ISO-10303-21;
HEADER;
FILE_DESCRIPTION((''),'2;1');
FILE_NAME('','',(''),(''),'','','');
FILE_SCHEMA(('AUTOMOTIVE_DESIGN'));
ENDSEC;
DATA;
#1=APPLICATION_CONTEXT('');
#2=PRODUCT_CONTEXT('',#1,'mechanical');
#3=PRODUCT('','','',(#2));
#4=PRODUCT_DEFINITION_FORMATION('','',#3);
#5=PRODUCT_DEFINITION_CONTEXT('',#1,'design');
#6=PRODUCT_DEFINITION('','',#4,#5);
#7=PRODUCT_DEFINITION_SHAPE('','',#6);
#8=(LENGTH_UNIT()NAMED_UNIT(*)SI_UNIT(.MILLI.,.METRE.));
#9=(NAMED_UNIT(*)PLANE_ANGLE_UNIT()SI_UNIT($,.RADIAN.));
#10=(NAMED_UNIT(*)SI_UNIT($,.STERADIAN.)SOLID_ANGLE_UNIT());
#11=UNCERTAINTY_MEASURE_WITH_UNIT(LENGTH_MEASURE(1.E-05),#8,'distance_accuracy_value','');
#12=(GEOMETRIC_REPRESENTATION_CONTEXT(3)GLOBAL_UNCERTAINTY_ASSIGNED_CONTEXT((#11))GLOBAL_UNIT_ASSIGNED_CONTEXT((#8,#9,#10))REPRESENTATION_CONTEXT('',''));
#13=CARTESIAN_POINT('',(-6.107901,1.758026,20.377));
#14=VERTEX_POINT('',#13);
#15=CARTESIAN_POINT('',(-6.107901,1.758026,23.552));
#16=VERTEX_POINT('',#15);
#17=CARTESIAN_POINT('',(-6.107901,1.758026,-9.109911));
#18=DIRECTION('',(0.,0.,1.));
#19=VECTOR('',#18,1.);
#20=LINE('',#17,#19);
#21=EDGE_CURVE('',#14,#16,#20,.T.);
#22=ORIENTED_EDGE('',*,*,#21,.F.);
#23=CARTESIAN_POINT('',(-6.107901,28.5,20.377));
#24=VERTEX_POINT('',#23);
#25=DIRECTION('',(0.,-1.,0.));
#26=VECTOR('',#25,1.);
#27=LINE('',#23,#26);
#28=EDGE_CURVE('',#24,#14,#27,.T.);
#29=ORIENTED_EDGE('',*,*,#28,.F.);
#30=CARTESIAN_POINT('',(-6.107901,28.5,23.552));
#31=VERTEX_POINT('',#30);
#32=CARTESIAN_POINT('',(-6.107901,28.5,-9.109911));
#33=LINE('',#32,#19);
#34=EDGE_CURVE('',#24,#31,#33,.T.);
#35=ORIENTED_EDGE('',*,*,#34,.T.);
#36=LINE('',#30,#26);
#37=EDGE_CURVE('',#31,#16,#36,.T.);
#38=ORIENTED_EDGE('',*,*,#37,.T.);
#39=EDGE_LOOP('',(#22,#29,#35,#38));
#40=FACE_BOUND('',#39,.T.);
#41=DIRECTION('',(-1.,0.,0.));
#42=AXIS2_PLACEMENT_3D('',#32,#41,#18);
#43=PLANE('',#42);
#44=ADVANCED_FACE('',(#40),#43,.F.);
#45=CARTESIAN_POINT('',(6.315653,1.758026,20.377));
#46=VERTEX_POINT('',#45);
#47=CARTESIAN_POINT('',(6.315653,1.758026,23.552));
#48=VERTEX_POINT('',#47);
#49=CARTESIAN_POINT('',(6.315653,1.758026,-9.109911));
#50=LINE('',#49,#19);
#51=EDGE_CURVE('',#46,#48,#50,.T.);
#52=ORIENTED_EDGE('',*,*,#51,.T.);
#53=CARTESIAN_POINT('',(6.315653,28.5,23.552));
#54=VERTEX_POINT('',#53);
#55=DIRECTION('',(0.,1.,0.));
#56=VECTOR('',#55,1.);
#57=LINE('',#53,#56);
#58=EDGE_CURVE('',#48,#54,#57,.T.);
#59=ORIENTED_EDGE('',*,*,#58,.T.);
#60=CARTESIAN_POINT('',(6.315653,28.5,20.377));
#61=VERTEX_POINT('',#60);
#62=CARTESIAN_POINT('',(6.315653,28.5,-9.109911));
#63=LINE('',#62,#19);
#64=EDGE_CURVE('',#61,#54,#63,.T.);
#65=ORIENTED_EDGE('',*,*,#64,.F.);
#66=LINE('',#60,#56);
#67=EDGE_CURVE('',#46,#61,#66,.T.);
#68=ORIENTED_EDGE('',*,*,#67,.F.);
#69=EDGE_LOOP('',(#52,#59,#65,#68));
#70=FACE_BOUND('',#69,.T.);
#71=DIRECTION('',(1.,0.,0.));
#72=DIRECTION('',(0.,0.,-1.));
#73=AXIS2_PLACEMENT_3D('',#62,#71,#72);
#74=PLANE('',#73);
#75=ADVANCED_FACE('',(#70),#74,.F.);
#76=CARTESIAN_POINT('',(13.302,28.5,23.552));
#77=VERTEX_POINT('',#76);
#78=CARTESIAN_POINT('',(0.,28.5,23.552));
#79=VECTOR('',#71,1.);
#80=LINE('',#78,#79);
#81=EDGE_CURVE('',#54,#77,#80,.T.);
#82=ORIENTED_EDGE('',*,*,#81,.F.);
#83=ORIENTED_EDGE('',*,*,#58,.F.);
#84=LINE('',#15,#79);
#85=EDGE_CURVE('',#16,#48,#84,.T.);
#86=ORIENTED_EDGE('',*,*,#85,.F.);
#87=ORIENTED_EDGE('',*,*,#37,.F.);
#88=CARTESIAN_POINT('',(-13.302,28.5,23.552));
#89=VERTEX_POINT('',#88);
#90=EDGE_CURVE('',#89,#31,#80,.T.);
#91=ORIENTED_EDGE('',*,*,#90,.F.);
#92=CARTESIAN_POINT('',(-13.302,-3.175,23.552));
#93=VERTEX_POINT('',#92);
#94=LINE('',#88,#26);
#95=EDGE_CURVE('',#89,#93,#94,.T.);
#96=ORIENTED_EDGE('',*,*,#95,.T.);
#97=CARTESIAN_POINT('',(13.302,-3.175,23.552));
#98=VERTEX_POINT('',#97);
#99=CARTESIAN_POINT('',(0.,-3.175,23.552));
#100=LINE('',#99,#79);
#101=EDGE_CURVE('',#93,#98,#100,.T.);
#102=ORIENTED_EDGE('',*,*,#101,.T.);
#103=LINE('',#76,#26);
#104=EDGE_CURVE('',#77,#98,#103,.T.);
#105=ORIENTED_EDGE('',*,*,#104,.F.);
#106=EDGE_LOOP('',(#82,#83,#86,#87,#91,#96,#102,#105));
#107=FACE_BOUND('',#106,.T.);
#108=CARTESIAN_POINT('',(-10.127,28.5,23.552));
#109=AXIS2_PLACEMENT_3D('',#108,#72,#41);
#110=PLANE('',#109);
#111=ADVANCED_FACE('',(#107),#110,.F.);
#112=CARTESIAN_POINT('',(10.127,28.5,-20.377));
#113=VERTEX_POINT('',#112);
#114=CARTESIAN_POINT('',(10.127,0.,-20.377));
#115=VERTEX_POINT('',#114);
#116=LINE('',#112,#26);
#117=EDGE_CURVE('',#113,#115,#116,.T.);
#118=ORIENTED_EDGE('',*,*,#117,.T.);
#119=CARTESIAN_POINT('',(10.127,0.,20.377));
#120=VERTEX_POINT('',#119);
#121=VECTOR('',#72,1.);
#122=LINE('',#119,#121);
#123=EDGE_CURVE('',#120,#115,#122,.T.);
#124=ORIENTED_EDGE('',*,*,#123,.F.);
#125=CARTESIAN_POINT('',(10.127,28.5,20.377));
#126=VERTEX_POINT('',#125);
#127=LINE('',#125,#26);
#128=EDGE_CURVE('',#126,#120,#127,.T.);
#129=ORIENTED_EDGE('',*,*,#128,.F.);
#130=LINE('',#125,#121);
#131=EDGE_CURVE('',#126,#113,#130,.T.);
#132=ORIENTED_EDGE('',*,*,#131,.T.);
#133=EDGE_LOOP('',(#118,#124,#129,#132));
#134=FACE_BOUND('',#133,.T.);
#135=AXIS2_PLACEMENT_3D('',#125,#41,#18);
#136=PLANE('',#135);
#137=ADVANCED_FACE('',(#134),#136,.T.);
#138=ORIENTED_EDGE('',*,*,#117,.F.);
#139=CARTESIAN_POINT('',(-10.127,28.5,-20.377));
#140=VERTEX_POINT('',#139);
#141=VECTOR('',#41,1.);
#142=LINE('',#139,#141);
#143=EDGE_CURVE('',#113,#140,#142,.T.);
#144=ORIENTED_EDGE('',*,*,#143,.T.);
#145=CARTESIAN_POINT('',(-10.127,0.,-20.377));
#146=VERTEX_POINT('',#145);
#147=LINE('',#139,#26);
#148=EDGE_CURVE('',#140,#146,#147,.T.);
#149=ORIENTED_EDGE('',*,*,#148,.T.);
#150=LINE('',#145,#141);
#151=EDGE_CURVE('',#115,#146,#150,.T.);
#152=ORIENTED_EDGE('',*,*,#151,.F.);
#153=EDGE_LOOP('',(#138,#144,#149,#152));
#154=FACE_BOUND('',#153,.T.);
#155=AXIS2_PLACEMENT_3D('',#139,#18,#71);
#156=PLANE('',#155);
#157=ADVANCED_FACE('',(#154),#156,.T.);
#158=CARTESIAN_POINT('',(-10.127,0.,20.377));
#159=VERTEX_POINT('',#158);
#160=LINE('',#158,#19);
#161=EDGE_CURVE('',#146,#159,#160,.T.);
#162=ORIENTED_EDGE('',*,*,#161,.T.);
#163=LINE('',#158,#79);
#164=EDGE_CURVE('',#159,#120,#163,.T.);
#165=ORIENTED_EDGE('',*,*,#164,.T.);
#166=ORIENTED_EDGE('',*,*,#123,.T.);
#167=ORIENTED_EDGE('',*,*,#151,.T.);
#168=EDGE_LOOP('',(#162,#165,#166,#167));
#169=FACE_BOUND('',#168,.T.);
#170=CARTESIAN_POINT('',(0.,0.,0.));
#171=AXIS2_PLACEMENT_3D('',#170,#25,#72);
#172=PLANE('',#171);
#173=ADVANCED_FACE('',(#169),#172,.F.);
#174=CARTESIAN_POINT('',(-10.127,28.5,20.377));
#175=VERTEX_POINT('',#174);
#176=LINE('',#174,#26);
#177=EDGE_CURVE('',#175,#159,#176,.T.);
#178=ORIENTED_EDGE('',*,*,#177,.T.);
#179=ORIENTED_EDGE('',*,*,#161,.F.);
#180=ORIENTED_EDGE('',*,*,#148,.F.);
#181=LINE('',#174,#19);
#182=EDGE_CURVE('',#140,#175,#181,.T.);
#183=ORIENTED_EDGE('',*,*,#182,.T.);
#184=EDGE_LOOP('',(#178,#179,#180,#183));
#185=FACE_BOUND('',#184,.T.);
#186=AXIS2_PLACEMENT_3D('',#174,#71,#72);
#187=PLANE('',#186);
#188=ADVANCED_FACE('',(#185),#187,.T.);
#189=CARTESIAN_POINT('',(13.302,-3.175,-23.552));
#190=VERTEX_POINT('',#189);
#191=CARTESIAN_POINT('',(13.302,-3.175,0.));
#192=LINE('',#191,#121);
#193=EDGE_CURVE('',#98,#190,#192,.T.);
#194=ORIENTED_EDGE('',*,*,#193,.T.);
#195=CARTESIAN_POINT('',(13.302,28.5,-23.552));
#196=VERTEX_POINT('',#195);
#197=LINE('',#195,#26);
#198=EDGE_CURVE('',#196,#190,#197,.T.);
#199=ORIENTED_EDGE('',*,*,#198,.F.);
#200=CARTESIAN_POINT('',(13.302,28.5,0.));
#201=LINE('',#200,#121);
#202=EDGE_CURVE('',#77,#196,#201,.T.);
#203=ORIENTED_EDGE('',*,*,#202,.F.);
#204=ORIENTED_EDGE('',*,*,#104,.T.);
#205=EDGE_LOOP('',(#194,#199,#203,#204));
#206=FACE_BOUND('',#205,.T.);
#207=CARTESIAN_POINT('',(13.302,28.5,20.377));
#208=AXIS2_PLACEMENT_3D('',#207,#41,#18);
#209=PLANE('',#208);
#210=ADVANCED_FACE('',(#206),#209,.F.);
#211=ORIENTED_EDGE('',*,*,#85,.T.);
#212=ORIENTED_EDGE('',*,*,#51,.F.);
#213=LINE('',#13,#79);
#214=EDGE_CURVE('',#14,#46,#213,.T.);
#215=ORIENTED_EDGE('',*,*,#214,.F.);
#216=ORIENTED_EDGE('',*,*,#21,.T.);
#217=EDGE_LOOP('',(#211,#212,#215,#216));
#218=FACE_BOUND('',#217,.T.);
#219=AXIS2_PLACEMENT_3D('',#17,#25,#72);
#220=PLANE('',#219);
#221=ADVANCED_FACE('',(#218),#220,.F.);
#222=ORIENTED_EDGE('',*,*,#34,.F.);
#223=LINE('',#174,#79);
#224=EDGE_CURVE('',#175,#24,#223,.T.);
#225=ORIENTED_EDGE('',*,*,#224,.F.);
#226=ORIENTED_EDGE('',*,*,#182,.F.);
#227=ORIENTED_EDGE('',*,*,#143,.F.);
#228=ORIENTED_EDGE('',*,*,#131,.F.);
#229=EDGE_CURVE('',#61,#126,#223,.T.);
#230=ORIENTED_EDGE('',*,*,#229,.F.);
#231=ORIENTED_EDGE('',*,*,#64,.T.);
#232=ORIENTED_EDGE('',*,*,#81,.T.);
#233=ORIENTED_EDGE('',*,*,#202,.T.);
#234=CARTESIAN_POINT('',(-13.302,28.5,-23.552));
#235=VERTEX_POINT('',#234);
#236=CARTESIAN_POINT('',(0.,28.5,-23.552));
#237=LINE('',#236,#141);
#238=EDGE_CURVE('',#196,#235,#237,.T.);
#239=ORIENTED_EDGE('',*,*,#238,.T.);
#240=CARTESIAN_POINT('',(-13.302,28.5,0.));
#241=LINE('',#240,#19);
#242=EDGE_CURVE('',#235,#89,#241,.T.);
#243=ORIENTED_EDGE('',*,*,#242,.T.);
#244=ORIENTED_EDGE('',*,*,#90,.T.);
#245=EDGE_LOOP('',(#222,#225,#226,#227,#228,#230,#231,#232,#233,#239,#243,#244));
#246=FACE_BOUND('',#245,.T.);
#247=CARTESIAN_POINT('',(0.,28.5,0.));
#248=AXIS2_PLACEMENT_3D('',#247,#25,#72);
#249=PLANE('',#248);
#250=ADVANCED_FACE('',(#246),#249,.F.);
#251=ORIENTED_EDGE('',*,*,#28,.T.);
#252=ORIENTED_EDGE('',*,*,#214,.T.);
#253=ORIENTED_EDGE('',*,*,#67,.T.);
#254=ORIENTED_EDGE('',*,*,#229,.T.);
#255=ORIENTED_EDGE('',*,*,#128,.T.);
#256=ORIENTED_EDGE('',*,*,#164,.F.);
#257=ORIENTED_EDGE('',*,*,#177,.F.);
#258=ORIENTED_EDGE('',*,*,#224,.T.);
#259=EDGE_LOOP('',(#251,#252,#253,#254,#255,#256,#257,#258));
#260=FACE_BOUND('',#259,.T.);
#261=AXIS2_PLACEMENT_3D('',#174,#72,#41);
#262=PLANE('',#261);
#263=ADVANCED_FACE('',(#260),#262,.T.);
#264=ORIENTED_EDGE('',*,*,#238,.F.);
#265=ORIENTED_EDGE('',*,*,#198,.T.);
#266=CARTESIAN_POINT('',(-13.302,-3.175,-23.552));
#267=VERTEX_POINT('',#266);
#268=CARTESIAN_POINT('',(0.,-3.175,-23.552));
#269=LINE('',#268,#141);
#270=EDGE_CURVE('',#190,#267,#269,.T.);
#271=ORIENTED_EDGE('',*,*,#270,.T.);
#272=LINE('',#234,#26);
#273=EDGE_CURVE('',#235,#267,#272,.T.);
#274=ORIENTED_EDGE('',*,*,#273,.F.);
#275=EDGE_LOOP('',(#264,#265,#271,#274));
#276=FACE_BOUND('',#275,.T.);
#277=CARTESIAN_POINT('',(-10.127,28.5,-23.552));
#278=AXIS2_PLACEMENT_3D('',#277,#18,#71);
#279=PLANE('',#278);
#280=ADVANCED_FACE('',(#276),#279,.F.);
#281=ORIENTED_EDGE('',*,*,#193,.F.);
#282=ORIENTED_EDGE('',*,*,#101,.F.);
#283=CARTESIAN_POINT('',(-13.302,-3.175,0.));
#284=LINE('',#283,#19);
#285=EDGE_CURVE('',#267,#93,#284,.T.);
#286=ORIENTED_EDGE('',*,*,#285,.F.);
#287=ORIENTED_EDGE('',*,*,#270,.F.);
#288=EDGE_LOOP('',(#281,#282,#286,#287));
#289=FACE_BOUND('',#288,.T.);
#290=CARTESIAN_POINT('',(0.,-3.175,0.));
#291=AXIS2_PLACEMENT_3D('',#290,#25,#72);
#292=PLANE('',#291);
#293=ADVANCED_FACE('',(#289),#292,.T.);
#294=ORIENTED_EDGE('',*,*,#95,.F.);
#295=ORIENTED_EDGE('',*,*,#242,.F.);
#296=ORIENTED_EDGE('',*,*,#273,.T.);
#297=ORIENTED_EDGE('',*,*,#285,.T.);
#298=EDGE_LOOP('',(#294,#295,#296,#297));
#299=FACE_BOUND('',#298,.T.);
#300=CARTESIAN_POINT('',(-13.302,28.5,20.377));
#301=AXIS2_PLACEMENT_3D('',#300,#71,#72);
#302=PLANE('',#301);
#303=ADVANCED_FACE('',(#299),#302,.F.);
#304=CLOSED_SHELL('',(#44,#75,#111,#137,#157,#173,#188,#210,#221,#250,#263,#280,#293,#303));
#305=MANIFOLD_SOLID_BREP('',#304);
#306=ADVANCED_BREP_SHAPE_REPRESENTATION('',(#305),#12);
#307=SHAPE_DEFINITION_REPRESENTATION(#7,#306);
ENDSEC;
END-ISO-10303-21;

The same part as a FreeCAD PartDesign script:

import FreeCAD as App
import Part
import Sketcher

V = App.Vector


def faces_at(feature, points):
    """Names of the faces that lie closest to the given points."""
    faces = feature.Shape.Faces
    near = lambda p: min(range(len(faces)), key=lambda i: faces[i].distToShape(Part.Vertex(*p))[0])
    return sorted({f"Face{near(p) + 1}" for p in points})

doc = App.newDocument("Part")
params = doc.addObject("Spreadsheet::Sheet", "Params")
for row, (alias, value) in enumerate([
    ("pad1_length", "28.5 mm"),
    ("thickness_wall", "3.175 mm"),
    ("pocket1_length", "3.175 mm"),
], start=1):
    params.set(f"A{row}", alias)
    params.set(f"B{row}", "=" + value)
    params.setAlias(f"B{row}", alias)

body = doc.addObject("PartDesign::Body", "Body")

# Sketch on XZ plane
sketch1 = body.newObject("Sketcher::SketchObject", "Sketch")
sketch1.AttachmentSupport = (doc.getObject("XZ_Plane"), [""])
sketch1.MapMode = "FlatFace"
sketch1.addGeometry([
    Part.LineSegment(V(-10, -20, 0), V(-10, 20, 0)),
    Part.LineSegment(V(-10, 20, 0), V(10, 20, 0)),
    Part.LineSegment(V(10, 20, 0), V(10, -20, 0)),
    Part.LineSegment(V(10, -20, 0), V(-10, -20, 0)),
], False)
sketch1.addConstraint([
    Sketcher.Constraint("Coincident", 0, 2, 1, 1),
    Sketcher.Constraint("Coincident", 1, 2, 2, 1),
    Sketcher.Constraint("Coincident", 2, 2, 3, 1),
    Sketcher.Constraint("Coincident", 3, 2, 0, 1),
    Sketcher.Constraint("Vertical", 0),
    Sketcher.Constraint("Horizontal", 1),
    Sketcher.Constraint("Vertical", 2),
    Sketcher.Constraint("Horizontal", 3),
    Sketcher.Constraint("Symmetric", 0, 2, 2, 2, -1, 1),
    Sketcher.Constraint("DistanceX", 1, 1, 1, 2, 20.254),
    Sketcher.Constraint("DistanceY", 0, 1, 0, 2, 40.754),
])
pad1 = body.newObject("PartDesign::Pad", "Pad")
pad1.Profile = sketch1
pad1.setExpression("Length", "Params.pad1_length")
pad1.Reversed = True
doc.recompute()

thickness = body.newObject("PartDesign::Thickness", "Thickness")
thickness.Base = (pad1, faces_at(pad1, [(0, 28.5, 0)]))
thickness.setExpression("Value", "Params.thickness_wall")
thickness.Reversed = False
thickness.Join = "Intersection"

# Sketch on XY plane
sketch2 = body.newObject("Sketcher::SketchObject", "Sketch001")
sketch2.AttachmentSupport = (doc.getObject("XY_Plane"), [""])
sketch2.MapMode = "FlatFace"
sketch2.AttachmentOffset = App.Placement(V(0, 0, 23.552), App.Rotation())
sketch2.addGeometry([
    Part.LineSegment(V(-6, 28, 0), V(-6, 2, 0)),
    Part.LineSegment(V(-6, 2, 0), V(6, 2, 0)),
    Part.LineSegment(V(6, 2, 0), V(6, 28, 0)),
    Part.LineSegment(V(6, 28, 0), V(-6, 28, 0)),
], False)
sketch2.addConstraint([
    Sketcher.Constraint("Coincident", 0, 2, 1, 1),
    Sketcher.Constraint("Coincident", 1, 2, 2, 1),
    Sketcher.Constraint("Coincident", 2, 2, 3, 1),
    Sketcher.Constraint("Coincident", 3, 2, 0, 1),
    Sketcher.Constraint("Vertical", 0),
    Sketcher.Constraint("Horizontal", 1),
    Sketcher.Constraint("Vertical", 2),
    Sketcher.Constraint("Horizontal", 3),
    Sketcher.Constraint("DistanceY", -1, 1, 2, 2, 28.5),
    Sketcher.Constraint("DistanceX", 0, 2, -1, 1, 6.107901),
    Sketcher.Constraint("DistanceX", 1, 1, 1, 2, 12.423554),
    Sketcher.Constraint("DistanceY", 0, 2, 0, 1, 26.741974),
])
pocket1 = body.newObject("PartDesign::Pocket", "Pocket")
pocket1.Profile = sketch2
pocket1.setExpression("Length", "Params.pocket1_length")

doc.recompute()
